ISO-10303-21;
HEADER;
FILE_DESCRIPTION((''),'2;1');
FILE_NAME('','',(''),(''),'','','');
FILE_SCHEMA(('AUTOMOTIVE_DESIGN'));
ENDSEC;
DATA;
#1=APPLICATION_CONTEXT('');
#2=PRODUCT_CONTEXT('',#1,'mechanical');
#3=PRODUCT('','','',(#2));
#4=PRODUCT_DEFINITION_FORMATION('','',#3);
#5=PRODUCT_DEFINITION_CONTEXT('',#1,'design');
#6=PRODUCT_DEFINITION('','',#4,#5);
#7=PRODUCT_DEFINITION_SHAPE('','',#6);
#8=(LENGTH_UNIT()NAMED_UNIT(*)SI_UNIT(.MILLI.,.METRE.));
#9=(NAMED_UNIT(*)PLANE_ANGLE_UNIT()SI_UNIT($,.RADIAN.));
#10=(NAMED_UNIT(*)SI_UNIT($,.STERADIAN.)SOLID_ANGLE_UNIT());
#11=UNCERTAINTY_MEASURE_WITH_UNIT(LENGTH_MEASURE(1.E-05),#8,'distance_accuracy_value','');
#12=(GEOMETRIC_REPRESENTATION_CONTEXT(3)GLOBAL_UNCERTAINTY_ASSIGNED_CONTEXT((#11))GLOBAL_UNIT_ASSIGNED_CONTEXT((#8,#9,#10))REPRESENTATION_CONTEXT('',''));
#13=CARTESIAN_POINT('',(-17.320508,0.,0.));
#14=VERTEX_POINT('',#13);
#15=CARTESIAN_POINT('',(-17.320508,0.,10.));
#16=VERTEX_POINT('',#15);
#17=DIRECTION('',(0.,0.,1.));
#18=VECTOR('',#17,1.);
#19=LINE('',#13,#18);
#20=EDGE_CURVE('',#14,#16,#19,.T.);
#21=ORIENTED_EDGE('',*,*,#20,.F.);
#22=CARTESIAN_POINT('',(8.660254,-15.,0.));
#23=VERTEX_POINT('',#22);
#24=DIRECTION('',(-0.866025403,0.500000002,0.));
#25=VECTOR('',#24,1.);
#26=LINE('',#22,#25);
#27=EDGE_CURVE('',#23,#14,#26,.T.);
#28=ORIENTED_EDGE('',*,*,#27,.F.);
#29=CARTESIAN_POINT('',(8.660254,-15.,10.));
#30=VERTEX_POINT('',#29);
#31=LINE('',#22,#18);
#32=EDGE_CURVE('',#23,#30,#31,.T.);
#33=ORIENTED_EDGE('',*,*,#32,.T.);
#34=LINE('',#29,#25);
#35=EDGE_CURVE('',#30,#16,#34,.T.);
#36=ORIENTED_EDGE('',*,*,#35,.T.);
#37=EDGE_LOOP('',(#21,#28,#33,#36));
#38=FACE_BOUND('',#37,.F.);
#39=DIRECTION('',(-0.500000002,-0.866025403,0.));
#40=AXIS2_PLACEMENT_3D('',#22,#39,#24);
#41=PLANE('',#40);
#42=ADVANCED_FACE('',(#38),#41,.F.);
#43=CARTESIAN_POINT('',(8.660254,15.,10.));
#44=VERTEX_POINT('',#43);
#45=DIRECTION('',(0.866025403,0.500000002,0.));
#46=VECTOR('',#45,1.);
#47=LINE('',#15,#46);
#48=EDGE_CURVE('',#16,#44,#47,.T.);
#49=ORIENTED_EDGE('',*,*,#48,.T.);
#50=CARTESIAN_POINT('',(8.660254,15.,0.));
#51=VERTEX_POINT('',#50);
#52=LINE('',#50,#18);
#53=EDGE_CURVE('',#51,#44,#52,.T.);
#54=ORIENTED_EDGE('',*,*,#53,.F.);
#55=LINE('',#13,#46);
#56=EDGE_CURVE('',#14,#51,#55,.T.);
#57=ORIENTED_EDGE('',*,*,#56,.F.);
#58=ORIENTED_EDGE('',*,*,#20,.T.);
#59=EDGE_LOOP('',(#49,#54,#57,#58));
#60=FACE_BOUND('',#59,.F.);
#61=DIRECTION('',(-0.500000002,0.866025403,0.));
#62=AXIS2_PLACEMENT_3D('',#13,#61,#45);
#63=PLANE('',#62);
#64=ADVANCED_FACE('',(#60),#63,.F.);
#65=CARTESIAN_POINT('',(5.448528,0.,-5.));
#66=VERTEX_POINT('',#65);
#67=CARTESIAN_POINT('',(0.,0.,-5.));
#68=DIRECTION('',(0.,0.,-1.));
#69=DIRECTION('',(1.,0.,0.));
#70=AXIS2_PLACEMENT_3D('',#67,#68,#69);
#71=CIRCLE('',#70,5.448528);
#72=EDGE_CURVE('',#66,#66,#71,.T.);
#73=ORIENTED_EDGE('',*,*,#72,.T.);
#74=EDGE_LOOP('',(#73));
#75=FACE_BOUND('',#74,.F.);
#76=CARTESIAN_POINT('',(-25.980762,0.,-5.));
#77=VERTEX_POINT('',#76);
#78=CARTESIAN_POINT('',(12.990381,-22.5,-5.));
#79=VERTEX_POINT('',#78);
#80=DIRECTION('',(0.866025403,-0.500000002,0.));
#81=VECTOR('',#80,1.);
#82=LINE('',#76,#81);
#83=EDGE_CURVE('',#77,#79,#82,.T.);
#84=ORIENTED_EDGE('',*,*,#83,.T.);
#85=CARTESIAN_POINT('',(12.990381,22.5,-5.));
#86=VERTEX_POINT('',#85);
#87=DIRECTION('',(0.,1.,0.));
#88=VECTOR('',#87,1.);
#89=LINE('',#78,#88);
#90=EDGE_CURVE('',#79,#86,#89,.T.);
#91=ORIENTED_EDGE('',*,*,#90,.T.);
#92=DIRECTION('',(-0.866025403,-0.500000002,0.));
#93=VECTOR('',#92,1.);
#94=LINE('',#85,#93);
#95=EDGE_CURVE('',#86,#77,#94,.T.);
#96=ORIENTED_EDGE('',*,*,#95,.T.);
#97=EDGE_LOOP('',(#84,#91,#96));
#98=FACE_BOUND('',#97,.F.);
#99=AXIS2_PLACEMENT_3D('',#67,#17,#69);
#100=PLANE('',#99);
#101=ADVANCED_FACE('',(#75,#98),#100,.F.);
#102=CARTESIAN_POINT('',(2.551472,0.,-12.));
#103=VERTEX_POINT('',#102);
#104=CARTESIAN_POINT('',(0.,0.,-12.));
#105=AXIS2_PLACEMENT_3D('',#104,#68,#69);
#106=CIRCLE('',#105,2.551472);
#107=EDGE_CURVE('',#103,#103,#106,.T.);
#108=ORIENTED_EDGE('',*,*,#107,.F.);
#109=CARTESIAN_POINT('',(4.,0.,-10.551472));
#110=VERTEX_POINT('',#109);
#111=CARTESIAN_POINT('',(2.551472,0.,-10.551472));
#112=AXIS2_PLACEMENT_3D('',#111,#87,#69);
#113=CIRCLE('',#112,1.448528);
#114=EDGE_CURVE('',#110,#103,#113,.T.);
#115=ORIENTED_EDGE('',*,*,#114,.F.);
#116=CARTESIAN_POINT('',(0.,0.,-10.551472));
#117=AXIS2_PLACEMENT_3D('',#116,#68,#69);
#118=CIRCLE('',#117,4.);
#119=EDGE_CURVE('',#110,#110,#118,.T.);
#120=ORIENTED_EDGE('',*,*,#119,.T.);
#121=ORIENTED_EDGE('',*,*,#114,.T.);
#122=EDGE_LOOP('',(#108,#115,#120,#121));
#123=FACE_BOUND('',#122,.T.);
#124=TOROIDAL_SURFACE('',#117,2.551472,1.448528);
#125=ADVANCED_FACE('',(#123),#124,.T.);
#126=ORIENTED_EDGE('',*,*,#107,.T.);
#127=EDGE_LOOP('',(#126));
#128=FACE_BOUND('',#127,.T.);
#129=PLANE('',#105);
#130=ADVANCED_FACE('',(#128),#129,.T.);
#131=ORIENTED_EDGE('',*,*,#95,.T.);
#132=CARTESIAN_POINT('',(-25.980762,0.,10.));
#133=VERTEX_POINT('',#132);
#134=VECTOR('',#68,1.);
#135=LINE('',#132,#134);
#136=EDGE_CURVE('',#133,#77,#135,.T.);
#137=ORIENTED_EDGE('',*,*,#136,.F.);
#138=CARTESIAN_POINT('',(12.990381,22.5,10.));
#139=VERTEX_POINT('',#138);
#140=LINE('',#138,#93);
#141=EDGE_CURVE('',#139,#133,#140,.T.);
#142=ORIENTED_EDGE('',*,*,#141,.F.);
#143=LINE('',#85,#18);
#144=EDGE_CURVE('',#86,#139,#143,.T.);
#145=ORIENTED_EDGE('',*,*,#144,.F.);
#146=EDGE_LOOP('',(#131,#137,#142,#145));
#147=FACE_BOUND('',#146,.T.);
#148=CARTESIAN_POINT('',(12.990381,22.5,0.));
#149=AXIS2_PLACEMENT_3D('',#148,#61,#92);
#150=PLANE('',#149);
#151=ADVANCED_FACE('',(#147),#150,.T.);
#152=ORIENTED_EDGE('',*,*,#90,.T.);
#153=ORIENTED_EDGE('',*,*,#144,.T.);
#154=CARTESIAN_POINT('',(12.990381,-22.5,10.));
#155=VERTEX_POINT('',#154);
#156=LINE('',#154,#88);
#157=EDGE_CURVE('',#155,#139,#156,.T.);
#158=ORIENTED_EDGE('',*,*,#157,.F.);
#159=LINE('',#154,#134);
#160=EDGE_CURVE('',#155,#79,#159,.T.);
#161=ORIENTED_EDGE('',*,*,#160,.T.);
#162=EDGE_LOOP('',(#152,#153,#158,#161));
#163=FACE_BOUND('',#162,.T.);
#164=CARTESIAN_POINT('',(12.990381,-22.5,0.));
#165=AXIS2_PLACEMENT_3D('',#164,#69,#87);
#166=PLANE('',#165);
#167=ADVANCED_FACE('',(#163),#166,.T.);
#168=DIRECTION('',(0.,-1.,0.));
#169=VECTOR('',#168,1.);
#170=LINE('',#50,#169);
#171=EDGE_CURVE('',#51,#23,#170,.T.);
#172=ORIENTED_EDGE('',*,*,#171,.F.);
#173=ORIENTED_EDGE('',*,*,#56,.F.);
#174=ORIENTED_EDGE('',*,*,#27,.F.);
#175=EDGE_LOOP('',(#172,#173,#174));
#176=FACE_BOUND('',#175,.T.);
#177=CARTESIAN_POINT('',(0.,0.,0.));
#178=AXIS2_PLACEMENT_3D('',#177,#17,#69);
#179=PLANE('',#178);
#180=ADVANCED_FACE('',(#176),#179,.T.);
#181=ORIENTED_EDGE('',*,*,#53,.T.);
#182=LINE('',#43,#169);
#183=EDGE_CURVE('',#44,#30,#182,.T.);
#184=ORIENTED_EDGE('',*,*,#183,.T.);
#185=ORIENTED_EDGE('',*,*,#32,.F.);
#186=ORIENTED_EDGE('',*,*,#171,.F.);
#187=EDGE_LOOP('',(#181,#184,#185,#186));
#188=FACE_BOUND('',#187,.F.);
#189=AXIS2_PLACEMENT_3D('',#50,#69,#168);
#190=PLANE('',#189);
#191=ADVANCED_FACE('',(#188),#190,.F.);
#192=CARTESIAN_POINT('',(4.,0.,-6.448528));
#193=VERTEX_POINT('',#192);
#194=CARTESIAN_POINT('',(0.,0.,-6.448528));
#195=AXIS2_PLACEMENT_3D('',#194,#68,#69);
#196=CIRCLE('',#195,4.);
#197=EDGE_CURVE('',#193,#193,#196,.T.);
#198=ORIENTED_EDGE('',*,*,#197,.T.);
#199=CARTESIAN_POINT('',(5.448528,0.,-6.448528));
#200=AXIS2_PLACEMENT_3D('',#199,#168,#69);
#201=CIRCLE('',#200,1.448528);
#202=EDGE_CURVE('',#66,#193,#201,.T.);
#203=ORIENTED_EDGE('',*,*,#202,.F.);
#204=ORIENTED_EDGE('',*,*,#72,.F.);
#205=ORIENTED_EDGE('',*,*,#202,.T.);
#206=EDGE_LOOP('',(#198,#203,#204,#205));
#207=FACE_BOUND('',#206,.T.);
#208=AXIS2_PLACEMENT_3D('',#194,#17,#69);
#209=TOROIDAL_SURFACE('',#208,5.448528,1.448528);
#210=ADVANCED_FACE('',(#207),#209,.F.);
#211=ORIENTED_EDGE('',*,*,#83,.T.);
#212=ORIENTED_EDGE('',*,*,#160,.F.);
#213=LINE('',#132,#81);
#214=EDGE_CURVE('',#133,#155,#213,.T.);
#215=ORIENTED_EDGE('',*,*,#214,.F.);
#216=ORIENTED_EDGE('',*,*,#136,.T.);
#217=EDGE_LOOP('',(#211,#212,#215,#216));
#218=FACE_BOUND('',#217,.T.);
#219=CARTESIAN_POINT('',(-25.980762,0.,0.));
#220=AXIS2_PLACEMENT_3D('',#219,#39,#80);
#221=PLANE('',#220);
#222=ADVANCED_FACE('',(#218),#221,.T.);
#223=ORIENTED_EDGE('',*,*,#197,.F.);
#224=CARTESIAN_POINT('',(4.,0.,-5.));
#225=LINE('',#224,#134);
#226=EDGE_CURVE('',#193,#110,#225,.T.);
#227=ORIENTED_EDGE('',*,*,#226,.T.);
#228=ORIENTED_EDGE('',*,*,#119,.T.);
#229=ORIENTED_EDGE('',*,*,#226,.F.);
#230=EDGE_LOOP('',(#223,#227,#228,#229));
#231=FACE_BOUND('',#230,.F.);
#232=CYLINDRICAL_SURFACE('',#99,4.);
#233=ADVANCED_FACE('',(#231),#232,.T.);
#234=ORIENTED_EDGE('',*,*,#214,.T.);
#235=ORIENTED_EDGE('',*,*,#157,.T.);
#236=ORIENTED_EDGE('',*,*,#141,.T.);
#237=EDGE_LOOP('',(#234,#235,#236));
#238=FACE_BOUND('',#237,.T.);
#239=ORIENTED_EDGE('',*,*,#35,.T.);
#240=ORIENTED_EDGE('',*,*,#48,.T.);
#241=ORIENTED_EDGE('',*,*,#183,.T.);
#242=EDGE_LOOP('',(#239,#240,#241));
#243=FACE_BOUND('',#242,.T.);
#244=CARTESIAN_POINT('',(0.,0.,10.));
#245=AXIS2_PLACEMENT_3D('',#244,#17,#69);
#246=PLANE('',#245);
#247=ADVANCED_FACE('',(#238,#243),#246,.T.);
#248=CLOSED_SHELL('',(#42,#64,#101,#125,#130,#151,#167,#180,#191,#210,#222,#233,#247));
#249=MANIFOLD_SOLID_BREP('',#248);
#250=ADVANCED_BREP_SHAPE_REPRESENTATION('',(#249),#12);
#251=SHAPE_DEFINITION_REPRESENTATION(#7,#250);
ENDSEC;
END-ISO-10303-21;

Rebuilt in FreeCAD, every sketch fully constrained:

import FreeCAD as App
import Part
import Sketcher
from FreeCAD import Vector
Q = App.Units.Quantity


def edges_at(feature, points):
    """Names of the edges that pass closest to the given points."""
    edges = feature.Shape.Edges
    near = lambda p: min(range(len(edges)), key=lambda i: edges[i].distToShape(Part.Vertex(*p))[0])
    return sorted({f"Edge{near(p) + 1}" for p in points})


def add_polygon(sketch, points):
    """Adds a closed chain of lines whose ends are joined by coincident constraints."""
    first, n = sketch.GeometryCount, len(points)
    for a, b in zip(points, points[1:] + points[:1]):
        sketch.addGeometry(Part.LineSegment(App.Vector(*a, 0), App.Vector(*b, 0)), False)
    for i in range(n):
        sketch.addConstraint(Sketcher.Constraint("Coincident", first + i, 2, first + (i + 1) % n, 1))

doc = App.newDocument("Part")
body = doc.addObject("PartDesign::Body", "Body")

# Sketch on XY plane
sketch1 = body.newObject("Sketcher::SketchObject", "Sketch")
sketch1.AttachmentSupport = (doc.getObject("XY_Plane"), [""])
sketch1.MapMode = "FlatFace"
add_polygon(sketch1, [(13, -22), (13, 22), (-26, 0)])  # lines 0-2
add_polygon(sketch1, [(9, -15), (-17, 0), (9, 15)])  # lines 3-5
sketch1.addConstraint([
    Sketcher.Constraint("Vertical", 0),
    Sketcher.Constraint("Vertical", 5),
    Sketcher.Constraint("PointOnObject", 1, 2, -1),
    Sketcher.Constraint("PointOnObject", 3, 2, -1),
    Sketcher.Constraint("Parallel", 2, 3),
    Sketcher.Constraint("Parallel", 1, 4),
    Sketcher.Constraint("Equal", 1, 2),
    Sketcher.Constraint("DistanceY", 0, 1, 0, 2, 45.0),
    Sketcher.Constraint("DistanceY", 5, 2, 5, 1, 30.0),
    Sketcher.Constraint("Angle", 1, Q("-150 deg")),
    Sketcher.Constraint("DistanceX", -1, 1, 0, 2, 12.990381),
    Sketcher.Constraint("DistanceX", 3, 2, -1, 1, 17.320508),
])
pad1 = body.newObject("PartDesign::Pad", "Pad")
pad1.Profile = sketch1
pad1.Length = 10

# Sketch on XY plane
sketch2 = body.newObject("Sketcher::SketchObject", "Sketch001")
sketch2.AttachmentSupport = (doc.getObject("XY_Plane"), [""])
sketch2.MapMode = "FlatFace"
add_polygon(sketch2, [(13, -22), (13, 22), (-26, 0)])  # lines 0-2
sketch2.addConstraint([
    Sketcher.Constraint("Vertical", 0),
    Sketcher.Constraint("PointOnObject", 1, 2, -1),
    Sketcher.Constraint("Equal", 1, 2),
    Sketcher.Constraint("DistanceY", 0, 1, 0, 2, 45.0),
    Sketcher.Constraint("Angle", 1, Q("-150 deg")),
    Sketcher.Constraint("DistanceX", -1, 1, 0, 2, 12.990381),
])
pad2 = body.newObject("PartDesign::Pad", "Pad001")
pad2.Profile = sketch2
pad2.Length = 5
pad2.Reversed = True

# Sketch on XY plane
sketch3 = body.newObject("Sketcher::SketchObject", "Sketch002")
sketch3.AttachmentSupport = (doc.getObject("XY_Plane"), [""])
sketch3.MapMode = "FlatFace"
sketch3.AttachmentOffset = App.Placement(Vector(0, 0, -5), App.Rotation())
sketch3.addGeometry(Part.Circle(Vector(0, 0, 0), Vector(0, 0, 1), 4), False)
sketch3.addConstraint([
    Sketcher.Constraint("Coincident", 0, 3, -1, 1),
    Sketcher.Constraint("Diameter", 0, 8.0),
])
pad3 = body.newObject("PartDesign::Pad", "Pad002")
pad3.Profile = sketch3
pad3.Length = 7
pad3.Reversed = True
doc.recompute()

fillet = body.newObject("PartDesign::Fillet", "Fillet")
fillet.Base = (pad3, edges_at(pad3, [(4, 0, -8.5), (-4, 0, -5), (-4, 0, -12)]))
fillet.Radius = 1.448528

doc.recompute()
